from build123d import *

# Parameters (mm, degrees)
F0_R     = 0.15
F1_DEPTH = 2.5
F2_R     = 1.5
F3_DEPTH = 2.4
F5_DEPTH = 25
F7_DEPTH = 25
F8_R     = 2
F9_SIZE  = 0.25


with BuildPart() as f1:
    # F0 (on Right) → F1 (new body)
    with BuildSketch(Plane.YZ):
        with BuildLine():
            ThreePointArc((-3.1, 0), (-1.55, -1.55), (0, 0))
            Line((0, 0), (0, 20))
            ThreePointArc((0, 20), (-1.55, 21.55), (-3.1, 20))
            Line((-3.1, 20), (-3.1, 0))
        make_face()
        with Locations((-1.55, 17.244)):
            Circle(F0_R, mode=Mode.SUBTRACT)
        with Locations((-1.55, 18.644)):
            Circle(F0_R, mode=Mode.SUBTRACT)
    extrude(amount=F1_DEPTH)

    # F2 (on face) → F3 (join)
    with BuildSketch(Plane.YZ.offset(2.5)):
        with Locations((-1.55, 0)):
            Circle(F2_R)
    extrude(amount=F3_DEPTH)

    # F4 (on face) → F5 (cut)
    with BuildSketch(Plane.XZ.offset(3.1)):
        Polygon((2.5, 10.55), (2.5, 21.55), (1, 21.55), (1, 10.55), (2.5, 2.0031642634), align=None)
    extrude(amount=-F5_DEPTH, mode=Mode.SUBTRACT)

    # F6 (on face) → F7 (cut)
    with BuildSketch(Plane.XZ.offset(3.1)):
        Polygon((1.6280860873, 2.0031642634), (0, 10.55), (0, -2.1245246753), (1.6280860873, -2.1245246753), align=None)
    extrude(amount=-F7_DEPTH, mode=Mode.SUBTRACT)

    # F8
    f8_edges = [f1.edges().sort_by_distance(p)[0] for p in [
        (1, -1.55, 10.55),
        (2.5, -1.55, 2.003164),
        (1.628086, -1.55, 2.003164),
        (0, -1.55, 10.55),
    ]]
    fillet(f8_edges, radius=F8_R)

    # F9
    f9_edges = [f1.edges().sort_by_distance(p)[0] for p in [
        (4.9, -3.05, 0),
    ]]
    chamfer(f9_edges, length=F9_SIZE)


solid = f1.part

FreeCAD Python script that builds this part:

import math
import FreeCAD as App
import Part
import Sketcher
from FreeCAD import Vector


def edges_at(feature, points):
    """Names of the edges that pass closest to the given points."""
    edges = feature.Shape.Edges
    near = lambda p: min(range(len(edges)), key=lambda i: edges[i].distToShape(Part.Vertex(*p))[0])
    return sorted({f"Edge{near(p) + 1}" for p in points})


def add_polygon(sketch, points):
    """Adds a closed chain of lines whose ends are joined by coincident constraints."""
    first, n = sketch.GeometryCount, len(points)
    for a, b in zip(points, points[1:] + points[:1]):
        sketch.addGeometry(Part.LineSegment(App.Vector(*a, 0), App.Vector(*b, 0)), False)
    for i in range(n):
        sketch.addConstraint(Sketcher.Constraint("Coincident", first + i, 2, first + (i + 1) % n, 1))

doc = App.newDocument("Part")
params = doc.addObject("Spreadsheet::Sheet", "Params")
for row, (alias, value) in enumerate([
    ("sketch1_diameter", "0.3 mm"),
    ("sketch1_height", "20 mm"),
    ("sketch1_radius", "1.55 mm"),
    ("pad1_length", "2.5 mm"),
    ("sketch2_diameter", "3 mm"),
    ("pad2_length", "2.4 mm"),
    ("sketch3_height", "11 mm"),
    ("sketch3_width", "1.5 mm"),
    ("pocket1_length", "25 mm"),
    ("pocket2_length", "25 mm"),
    ("fillet_radius", "2 mm"),
    ("chamfer_size", "0.25 mm"),
], start=1):
    params.set(f"A{row}", alias)
    params.set(f"B{row}", "=" + value)
    params.setAlias(f"B{row}", alias)

body = doc.addObject("PartDesign::Body", "Body")

# Sketch on YZ plane
sketch1 = doc.addObject("Sketcher::SketchObject", "Sketch")
body.addObject(sketch1)
sketch1.AttachmentSupport = (doc.YZ_Plane, [""])
sketch1.MapMode = "FlatFace"
sketch1.addGeometry(Part.ArcOfCircle(Part.Circle(Vector(-1.55, 0, 0), Vector(0, 0, 1), 1.55), math.radians(180), math.radians(360)), False)
sketch1.addGeometry(Part.LineSegment(Vector(0, 0, 0), Vector(0, 20, 0)), False)
sketch1.addGeometry(Part.ArcOfCircle(Part.Circle(Vector(-1.55, 20, 0), Vector(0, 0, 1), 1.55), math.radians(0), math.radians(180)), False)
sketch1.addGeometry(Part.LineSegment(Vector(-3.1, 20, 0), Vector(-3.1, 0, 0)), False)
sketch1.addGeometry(Part.Circle(Vector(-1.55, 17.24, 0), Vector(0, 0, 1), 0.15), False)
sketch1.addGeometry(Part.Circle(Vector(-1.55, 18.64, 0), Vector(0, 0, 1), 0.15), False)
sketch1.addConstraint(Sketcher.Constraint("Tangent", 0, 2, 1, 1))
sketch1.addConstraint(Sketcher.Constraint("Tangent", 1, 2, 2, 1))
sketch1.addConstraint(Sketcher.Constraint("Tangent", 2, 2, 3, 1))
sketch1.addConstraint(Sketcher.Constraint("Tangent", 3, 2, 0, 1))
sketch1.addConstraint(Sketcher.Constraint("Vertical", 1))
sketch1.addConstraint(Sketcher.Constraint("Vertical", 3))
sketch1.addConstraint(Sketcher.Constraint("Coincident", 0, 2, -1, 1))
sketch1.addConstraint(Sketcher.Constraint("Equal", 4, 5))
sketch1.addConstraint(Sketcher.Constraint("Vertical", 2, 3, 4, 3))
sketch1.addConstraint(Sketcher.Constraint("Vertical", 4, 3, 5, 3))
sketch1.addConstraint(Sketcher.Constraint("Diameter", 4, 0.3))
sketch1.addConstraint(Sketcher.Constraint("DistanceY", 1, 1, 1, 2, 20.0))
sketch1.addConstraint(Sketcher.Constraint("Radius", 0, 1.55))
sketch1.addConstraint(Sketcher.Constraint("DistanceY", 4, 3, 5, 3, 1.4))
sketch1.addConstraint(Sketcher.Constraint("DistanceY", -1, 1, 4, 3, 17.244))
sketch1.setExpression("Constraints[10]", "Params.sketch1_diameter")
sketch1.setExpression("Constraints[11]", "Params.sketch1_height")
sketch1.setExpression("Constraints[12]", "Params.sketch1_radius")
pad1 = doc.addObject("PartDesign::Pad", "Pad")
body.addObject(pad1)
pad1.Profile = sketch1
pad1.setExpression("Length", "Params.pad1_length")

# Sketch on YZ plane
sketch2 = doc.addObject("Sketcher::SketchObject", "Sketch001")
body.addObject(sketch2)
sketch2.AttachmentSupport = (doc.YZ_Plane, [""])
sketch2.MapMode = "FlatFace"
sketch2.AttachmentOffset = App.Placement(Vector(0, 0, 2.5), App.Rotation())
sketch2.addGeometry(Part.Circle(Vector(-1.6, 0, 0), Vector(0, 0, 1), 1.5), False)
sketch2.addConstraint(Sketcher.Constraint("PointOnObject", 0, 3, -1))
sketch2.addConstraint(Sketcher.Constraint("Diameter", 0, 3.0))
sketch2.addConstraint(Sketcher.Constraint("DistanceX", 0, 3, -1, 1, 1.55))
sketch2.setExpression("Constraints[1]", "Params.sketch2_diameter")
pad2 = doc.addObject("PartDesign::Pad", "Pad001")
body.addObject(pad2)
pad2.Profile = sketch2
pad2.setExpression("Length", "Params.pad2_length")

# Sketch on XZ plane
sketch3 = doc.addObject("Sketcher::SketchObject", "Sketch002")
body.addObject(sketch3)
sketch3.AttachmentSupport = (doc.XZ_Plane, [""])
sketch3.MapMode = "FlatFace"
sketch3.AttachmentOffset = App.Placement(Vector(0, 0, 3.1), App.Rotation())
add_polygon(sketch3, [(2.5, 21.6), (1, 21.6), (1, 10.6), (2.5, 2)])  # lines 0-3
sketch3.addConstraint(Sketcher.Constraint("Horizontal", 0))
sketch3.addConstraint(Sketcher.Constraint("Vertical", 1))
sketch3.addConstraint(Sketcher.Constraint("Vertical", 3))
sketch3.addConstraint(Sketcher.Constraint("DistanceY", 1, 2, 1, 1, 11.0))
sketch3.addConstraint(Sketcher.Constraint("DistanceX", 0, 2, 0, 1, 1.5))
sketch3.addConstraint(Sketcher.Constraint("DistanceX", -1, 1, 0, 2, 1.0))
sketch3.addConstraint(Sketcher.Constraint("DistanceY", -1, 1, 0, 2, 21.55))
sketch3.addConstraint(Sketcher.Constraint("DistanceY", 3, 1, 3, 2, 19.546836))
sketch3.setExpression("Constraints[7]", "Params.sketch3_height")
sketch3.setExpression("Constraints[8]", "Params.sketch3_width")
pocket1 = doc.addObject("PartDesign::Pocket", "Pocket")
body.addObject(pocket1)
pocket1.Profile = sketch3
pocket1.setExpression("Length", "Params.pocket1_length")

# Sketch on XZ plane
sketch4 = doc.addObject("Sketcher::SketchObject", "Sketch003")
body.addObject(sketch4)
sketch4.AttachmentSupport = (doc.XZ_Plane, [""])
sketch4.MapMode = "FlatFace"
sketch4.AttachmentOffset = App.Placement(Vector(0, 0, 3.1), App.Rotation())
add_polygon(sketch4, [(1.6, 2), (0, 10.6), (0, -2.1), (1.6, -2.1)])  # lines 0-3
sketch4.addConstraint(Sketcher.Constraint("Vertical", 1))
sketch4.addConstraint(Sketcher.Constraint("Horizontal", 2))
sketch4.addConstraint(Sketcher.Constraint("Vertical", 3))
sketch4.addConstraint(Sketcher.Constraint("PointOnObject", 0, 2, -2))
sketch4.addConstraint(Sketcher.Constraint("DistanceY", -1, 1, 0, 2, 10.55))
sketch4.addConstraint(Sketcher.Constraint("DistanceY", 3, 1, 3, 2, 4.127689))
sketch4.addConstraint(Sketcher.Constraint("Distance", 0, 8.700521))
sketch4.addConstraint(Sketcher.Constraint("DistanceX", 2, 1, 2, 2, 1.628086))
pocket2 = doc.addObject("PartDesign::Pocket", "Pocket001")
body.addObject(pocket2)
pocket2.Profile = sketch4
pocket2.setExpression("Length", "Params.pocket2_length")
doc.recompute()

fillet = doc.addObject("PartDesign::Fillet", "Fillet")
body.addObject(fillet)
fillet.Base = (pocket2, edges_at(pocket2, [
    (1, -1.55, 10.55),
    (2.5, -1.55, 2.003),
    (1.628, -1.55, 2.003),
    (0, -1.55, 10.55),
]))
fillet.setExpression("Radius", "Params.fillet_radius")
doc.recompute()

chamfer = doc.addObject("PartDesign::Chamfer", "Chamfer")
body.addObject(chamfer)
chamfer.Base = (fillet, edges_at(fillet, [(4.9, -3.05, 0)]))
chamfer.setExpression("Size", "Params.chamfer_size")

doc.recompute()
